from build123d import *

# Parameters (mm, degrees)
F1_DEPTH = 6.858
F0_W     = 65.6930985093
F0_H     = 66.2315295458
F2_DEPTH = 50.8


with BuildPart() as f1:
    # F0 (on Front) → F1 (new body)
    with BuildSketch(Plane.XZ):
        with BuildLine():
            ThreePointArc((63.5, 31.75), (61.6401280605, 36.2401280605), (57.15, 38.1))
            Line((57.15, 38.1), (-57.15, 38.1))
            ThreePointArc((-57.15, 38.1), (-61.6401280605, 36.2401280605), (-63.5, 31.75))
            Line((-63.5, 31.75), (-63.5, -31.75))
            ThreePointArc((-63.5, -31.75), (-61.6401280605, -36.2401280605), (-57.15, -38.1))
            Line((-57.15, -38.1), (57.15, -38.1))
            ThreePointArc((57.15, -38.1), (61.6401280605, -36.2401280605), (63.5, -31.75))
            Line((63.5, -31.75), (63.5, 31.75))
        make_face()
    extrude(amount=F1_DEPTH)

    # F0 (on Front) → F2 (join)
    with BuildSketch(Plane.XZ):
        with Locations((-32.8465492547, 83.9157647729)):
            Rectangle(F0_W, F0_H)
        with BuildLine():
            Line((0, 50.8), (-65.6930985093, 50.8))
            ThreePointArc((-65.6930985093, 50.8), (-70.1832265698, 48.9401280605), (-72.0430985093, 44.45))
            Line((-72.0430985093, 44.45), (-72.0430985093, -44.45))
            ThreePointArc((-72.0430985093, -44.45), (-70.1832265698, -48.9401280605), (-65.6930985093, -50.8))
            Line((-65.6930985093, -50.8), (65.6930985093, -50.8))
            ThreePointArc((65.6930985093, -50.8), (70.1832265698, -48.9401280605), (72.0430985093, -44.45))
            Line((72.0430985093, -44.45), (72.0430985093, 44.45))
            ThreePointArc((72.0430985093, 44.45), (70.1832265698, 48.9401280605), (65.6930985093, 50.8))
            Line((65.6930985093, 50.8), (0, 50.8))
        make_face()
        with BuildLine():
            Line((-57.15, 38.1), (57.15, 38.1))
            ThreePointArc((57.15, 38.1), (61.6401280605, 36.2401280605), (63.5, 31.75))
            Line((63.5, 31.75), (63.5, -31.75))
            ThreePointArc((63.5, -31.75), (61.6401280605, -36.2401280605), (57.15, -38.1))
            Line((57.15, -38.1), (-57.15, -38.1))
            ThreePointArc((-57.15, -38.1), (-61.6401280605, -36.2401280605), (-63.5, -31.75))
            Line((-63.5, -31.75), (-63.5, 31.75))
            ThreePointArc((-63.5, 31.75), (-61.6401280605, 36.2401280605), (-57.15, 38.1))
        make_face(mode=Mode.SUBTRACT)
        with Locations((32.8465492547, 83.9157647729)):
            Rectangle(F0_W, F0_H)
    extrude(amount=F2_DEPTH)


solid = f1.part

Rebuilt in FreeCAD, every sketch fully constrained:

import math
import FreeCAD as App
import Part
import Sketcher
Q = App.Units.Quantity

doc = App.newDocument("Part")
body = doc.addObject("PartDesign::Body", "Body")

# Sketch on XZ plane
sketch1 = body.newObject("Sketcher::SketchObject", "Sketch")
sketch1.AttachmentSupport = (doc.getObject("XZ_Plane"), [""])
sketch1.MapMode = "FlatFace"
sketch1.addGeometry([
    Part.ArcOfCircle(Part.Circle(App.Vector(57, 32, 0), App.Vector(0, 0, 1), 6), math.radians(0), math.radians(90)),  # 0
    Part.LineSegment(App.Vector(57, 38, 0), App.Vector(-57, 38, 0)),  # 1
    Part.ArcOfCircle(Part.Circle(App.Vector(-57, 32, 0), App.Vector(0, 0, 1), 6), math.radians(90), math.radians(180)),  # 2
    Part.LineSegment(App.Vector(-64, 32, 0), App.Vector(-64, -32, 0)),  # 3
    Part.ArcOfCircle(Part.Circle(App.Vector(-57, -32, 0), App.Vector(0, 0, 1), 6), math.radians(180), math.radians(270)),  # 4
    Part.LineSegment(App.Vector(-57, -38, 0), App.Vector(57, -38, 0)),  # 5
    Part.ArcOfCircle(Part.Circle(App.Vector(57, -32, 0), App.Vector(0, 0, 1), 6), math.radians(-90), math.radians(0)),  # 6
    Part.LineSegment(App.Vector(64, -32, 0), App.Vector(64, 32, 0)),  # 7
], False)
sketch1.addConstraint([
    Sketcher.Constraint("Tangent", 0, 2, 1, 1),
    Sketcher.Constraint("Tangent", 1, 2, 2, 1),
    Sketcher.Constraint("Tangent", 2, 2, 3, 1),
    Sketcher.Constraint("Tangent", 3, 2, 4, 1),
    Sketcher.Constraint("Tangent", 4, 2, 5, 1),
    Sketcher.Constraint("Tangent", 5, 2, 6, 1),
    Sketcher.Constraint("Tangent", 6, 2, 7, 1),
    Sketcher.Constraint("Tangent", 7, 2, 0, 1),
    Sketcher.Constraint("Horizontal", 1),
    Sketcher.Constraint("Vertical", 3),
    Sketcher.Constraint("Horizontal", 5),
    Sketcher.Constraint("Vertical", 7),
    Sketcher.Constraint("Equal", 0, 2),
    Sketcher.Constraint("Equal", 2, 4),
    Sketcher.Constraint("Equal", 4, 6),
    Sketcher.Constraint("Symmetric", 0, 3, 4, 3, -1, 1),
    Sketcher.Constraint("Radius", 0, Q("0.25 in")),
    Sketcher.Constraint("DistanceX", 1, 2, 1, 1, Q("4.5 in")),
    Sketcher.Constraint("DistanceY", 3, 2, 3, 1, Q("2.5 in")),
])
pad1 = body.newObject("PartDesign::Pad", "Pad")
pad1.Profile = sketch1
pad1.Length = Q("0.27 in")

# Sketch on XZ plane
sketch2 = body.newObject("Sketcher::SketchObject", "Sketch001")
sketch2.AttachmentSupport = (doc.getObject("XZ_Plane"), [""])
sketch2.MapMode = "FlatFace"
sketch2.addGeometry([
    Part.LineSegment(App.Vector(-66, 117, 0), App.Vector(-66, 51, 0)),  # 0
    Part.ArcOfCircle(Part.Circle(App.Vector(-66, 44, 0), App.Vector(0, 0, 1), 6), math.radians(90), math.radians(180)),  # 1
    Part.LineSegment(App.Vector(-72, 44, 0), App.Vector(-72, -44, 0)),  # 2
    Part.ArcOfCircle(Part.Circle(App.Vector(-66, -44, 0), App.Vector(0, 0, 1), 6), math.radians(180), math.radians(270)),  # 3
    Part.LineSegment(App.Vector(-66, -51, 0), App.Vector(66, -51, 0)),  # 4
    Part.ArcOfCircle(Part.Circle(App.Vector(66, -44, 0), App.Vector(0, 0, 1), 6), math.radians(-90), math.radians(0)),  # 5
    Part.LineSegment(App.Vector(72, -44, 0), App.Vector(72, 44, 0)),  # 6
    Part.ArcOfCircle(Part.Circle(App.Vector(66, 44, 0), App.Vector(0, 0, 1), 6), math.radians(0), math.radians(90)),  # 7
    Part.LineSegment(App.Vector(66, 51, 0), App.Vector(66, 117, 0)),  # 8
    Part.LineSegment(App.Vector(66, 117, 0), App.Vector(-66, 117, 0)),  # 9
    Part.ArcOfCircle(Part.Circle(App.Vector(-57, 32, 0), App.Vector(0, 0, 1), 6), math.radians(90), math.radians(180)),  # 10
    Part.LineSegment(App.Vector(-57, 38, 0), App.Vector(57, 38, 0)),  # 11
    Part.ArcOfCircle(Part.Circle(App.Vector(57, 32, 0), App.Vector(0, 0, 1), 6), math.radians(0), math.radians(90)),  # 12
    Part.LineSegment(App.Vector(64, 32, 0), App.Vector(64, -32, 0)),  # 13
    Part.ArcOfCircle(Part.Circle(App.Vector(57, -32, 0), App.Vector(0, 0, 1), 6), math.radians(-90), math.radians(0)),  # 14
    Part.LineSegment(App.Vector(57, -38, 0), App.Vector(-57, -38, 0)),  # 15
    Part.ArcOfCircle(Part.Circle(App.Vector(-57, -32, 0), App.Vector(0, 0, 1), 6), math.radians(180), math.radians(270)),  # 16
    Part.LineSegment(App.Vector(-64, -32, 0), App.Vector(-64, 32, 0)),  # 17
], False)
sketch2.addConstraint([
    Sketcher.Constraint("Coincident", 0, 2, 1, 1),
    Sketcher.Constraint("Tangent", 1, 2, 2, 1),
    Sketcher.Constraint("Tangent", 2, 2, 3, 1),
    Sketcher.Constraint("Tangent", 3, 2, 4, 1),
    Sketcher.Constraint("Tangent", 4, 2, 5, 1),
    Sketcher.Constraint("Tangent", 5, 2, 6, 1),
    Sketcher.Constraint("Tangent", 6, 2, 7, 1),
    Sketcher.Constraint("Coincident", 7, 2, 8, 1),
    Sketcher.Constraint("Coincident", 8, 2, 9, 1),
    Sketcher.Constraint("Coincident", 9, 2, 0, 1),
    Sketcher.Constraint("Tangent", 10, 1, 11, 1),
    Sketcher.Constraint("Tangent", 11, 2, 12, 2),
    Sketcher.Constraint("Tangent", 12, 1, 13, 1),
    Sketcher.Constraint("Tangent", 13, 2, 14, 2),
    Sketcher.Constraint("Tangent", 14, 1, 15, 1),
    Sketcher.Constraint("Tangent", 15, 2, 16, 2),
    Sketcher.Constraint("Tangent", 16, 1, 17, 1),
    Sketcher.Constraint("Tangent", 17, 2, 10, 2),
    Sketcher.Constraint("Vertical", 0),
    Sketcher.Constraint("Vertical", 2),
    Sketcher.Constraint("Horizontal", 4),
    Sketcher.Constraint("Vertical", 6),
    Sketcher.Constraint("Vertical", 8),
    Sketcher.Constraint("Horizontal", 9),
    Sketcher.Constraint("Horizontal", 11),
    Sketcher.Constraint("Vertical", 13),
    Sketcher.Constraint("Horizontal", 15),
    Sketcher.Constraint("Vertical", 17),
    Sketcher.Constraint("Equal", 1, 3),
    Sketcher.Constraint("Equal", 3, 5),
    Sketcher.Constraint("Equal", 5, 7),
    Sketcher.Constraint("Equal", 7, 10),
    Sketcher.Constraint("Equal", 10, 12),
    Sketcher.Constraint("Equal", 12, 14),
    Sketcher.Constraint("Equal", 14, 16),
    Sketcher.Constraint("Symmetric", 1, 3, 5, 3, -1, 1),
    Sketcher.Constraint("Symmetric", 10, 3, 14, 3, -1, 1),
    Sketcher.Constraint("Symmetric", 3, 2, 7, 2, -1, 1),
    Sketcher.Constraint("Vertical", 3, 3, 0, 2),
    Sketcher.Constraint("Radius", 1, Q("0.25 in")),
    Sketcher.Constraint("DistanceX", 11, 1, 11, 2, Q("4.5 in")),
    Sketcher.Constraint("DistanceY", 2, 2, 2, 1, Q("3.5 in")),
    Sketcher.Constraint("DistanceY", 13, 2, 13, 1, Q("2.5 in")),
    Sketcher.Constraint("DistanceY", 0, 2, 0, 1, Q("66.23153 mm")),
    Sketcher.Constraint("DistanceX", 1, 3, -1, 1, Q("65.693099 mm")),
])
pad2 = body.newObject("PartDesign::Pad", "Pad001")
pad2.Profile = sketch2
pad2.Length = Q("2 in")

doc.recompute()
